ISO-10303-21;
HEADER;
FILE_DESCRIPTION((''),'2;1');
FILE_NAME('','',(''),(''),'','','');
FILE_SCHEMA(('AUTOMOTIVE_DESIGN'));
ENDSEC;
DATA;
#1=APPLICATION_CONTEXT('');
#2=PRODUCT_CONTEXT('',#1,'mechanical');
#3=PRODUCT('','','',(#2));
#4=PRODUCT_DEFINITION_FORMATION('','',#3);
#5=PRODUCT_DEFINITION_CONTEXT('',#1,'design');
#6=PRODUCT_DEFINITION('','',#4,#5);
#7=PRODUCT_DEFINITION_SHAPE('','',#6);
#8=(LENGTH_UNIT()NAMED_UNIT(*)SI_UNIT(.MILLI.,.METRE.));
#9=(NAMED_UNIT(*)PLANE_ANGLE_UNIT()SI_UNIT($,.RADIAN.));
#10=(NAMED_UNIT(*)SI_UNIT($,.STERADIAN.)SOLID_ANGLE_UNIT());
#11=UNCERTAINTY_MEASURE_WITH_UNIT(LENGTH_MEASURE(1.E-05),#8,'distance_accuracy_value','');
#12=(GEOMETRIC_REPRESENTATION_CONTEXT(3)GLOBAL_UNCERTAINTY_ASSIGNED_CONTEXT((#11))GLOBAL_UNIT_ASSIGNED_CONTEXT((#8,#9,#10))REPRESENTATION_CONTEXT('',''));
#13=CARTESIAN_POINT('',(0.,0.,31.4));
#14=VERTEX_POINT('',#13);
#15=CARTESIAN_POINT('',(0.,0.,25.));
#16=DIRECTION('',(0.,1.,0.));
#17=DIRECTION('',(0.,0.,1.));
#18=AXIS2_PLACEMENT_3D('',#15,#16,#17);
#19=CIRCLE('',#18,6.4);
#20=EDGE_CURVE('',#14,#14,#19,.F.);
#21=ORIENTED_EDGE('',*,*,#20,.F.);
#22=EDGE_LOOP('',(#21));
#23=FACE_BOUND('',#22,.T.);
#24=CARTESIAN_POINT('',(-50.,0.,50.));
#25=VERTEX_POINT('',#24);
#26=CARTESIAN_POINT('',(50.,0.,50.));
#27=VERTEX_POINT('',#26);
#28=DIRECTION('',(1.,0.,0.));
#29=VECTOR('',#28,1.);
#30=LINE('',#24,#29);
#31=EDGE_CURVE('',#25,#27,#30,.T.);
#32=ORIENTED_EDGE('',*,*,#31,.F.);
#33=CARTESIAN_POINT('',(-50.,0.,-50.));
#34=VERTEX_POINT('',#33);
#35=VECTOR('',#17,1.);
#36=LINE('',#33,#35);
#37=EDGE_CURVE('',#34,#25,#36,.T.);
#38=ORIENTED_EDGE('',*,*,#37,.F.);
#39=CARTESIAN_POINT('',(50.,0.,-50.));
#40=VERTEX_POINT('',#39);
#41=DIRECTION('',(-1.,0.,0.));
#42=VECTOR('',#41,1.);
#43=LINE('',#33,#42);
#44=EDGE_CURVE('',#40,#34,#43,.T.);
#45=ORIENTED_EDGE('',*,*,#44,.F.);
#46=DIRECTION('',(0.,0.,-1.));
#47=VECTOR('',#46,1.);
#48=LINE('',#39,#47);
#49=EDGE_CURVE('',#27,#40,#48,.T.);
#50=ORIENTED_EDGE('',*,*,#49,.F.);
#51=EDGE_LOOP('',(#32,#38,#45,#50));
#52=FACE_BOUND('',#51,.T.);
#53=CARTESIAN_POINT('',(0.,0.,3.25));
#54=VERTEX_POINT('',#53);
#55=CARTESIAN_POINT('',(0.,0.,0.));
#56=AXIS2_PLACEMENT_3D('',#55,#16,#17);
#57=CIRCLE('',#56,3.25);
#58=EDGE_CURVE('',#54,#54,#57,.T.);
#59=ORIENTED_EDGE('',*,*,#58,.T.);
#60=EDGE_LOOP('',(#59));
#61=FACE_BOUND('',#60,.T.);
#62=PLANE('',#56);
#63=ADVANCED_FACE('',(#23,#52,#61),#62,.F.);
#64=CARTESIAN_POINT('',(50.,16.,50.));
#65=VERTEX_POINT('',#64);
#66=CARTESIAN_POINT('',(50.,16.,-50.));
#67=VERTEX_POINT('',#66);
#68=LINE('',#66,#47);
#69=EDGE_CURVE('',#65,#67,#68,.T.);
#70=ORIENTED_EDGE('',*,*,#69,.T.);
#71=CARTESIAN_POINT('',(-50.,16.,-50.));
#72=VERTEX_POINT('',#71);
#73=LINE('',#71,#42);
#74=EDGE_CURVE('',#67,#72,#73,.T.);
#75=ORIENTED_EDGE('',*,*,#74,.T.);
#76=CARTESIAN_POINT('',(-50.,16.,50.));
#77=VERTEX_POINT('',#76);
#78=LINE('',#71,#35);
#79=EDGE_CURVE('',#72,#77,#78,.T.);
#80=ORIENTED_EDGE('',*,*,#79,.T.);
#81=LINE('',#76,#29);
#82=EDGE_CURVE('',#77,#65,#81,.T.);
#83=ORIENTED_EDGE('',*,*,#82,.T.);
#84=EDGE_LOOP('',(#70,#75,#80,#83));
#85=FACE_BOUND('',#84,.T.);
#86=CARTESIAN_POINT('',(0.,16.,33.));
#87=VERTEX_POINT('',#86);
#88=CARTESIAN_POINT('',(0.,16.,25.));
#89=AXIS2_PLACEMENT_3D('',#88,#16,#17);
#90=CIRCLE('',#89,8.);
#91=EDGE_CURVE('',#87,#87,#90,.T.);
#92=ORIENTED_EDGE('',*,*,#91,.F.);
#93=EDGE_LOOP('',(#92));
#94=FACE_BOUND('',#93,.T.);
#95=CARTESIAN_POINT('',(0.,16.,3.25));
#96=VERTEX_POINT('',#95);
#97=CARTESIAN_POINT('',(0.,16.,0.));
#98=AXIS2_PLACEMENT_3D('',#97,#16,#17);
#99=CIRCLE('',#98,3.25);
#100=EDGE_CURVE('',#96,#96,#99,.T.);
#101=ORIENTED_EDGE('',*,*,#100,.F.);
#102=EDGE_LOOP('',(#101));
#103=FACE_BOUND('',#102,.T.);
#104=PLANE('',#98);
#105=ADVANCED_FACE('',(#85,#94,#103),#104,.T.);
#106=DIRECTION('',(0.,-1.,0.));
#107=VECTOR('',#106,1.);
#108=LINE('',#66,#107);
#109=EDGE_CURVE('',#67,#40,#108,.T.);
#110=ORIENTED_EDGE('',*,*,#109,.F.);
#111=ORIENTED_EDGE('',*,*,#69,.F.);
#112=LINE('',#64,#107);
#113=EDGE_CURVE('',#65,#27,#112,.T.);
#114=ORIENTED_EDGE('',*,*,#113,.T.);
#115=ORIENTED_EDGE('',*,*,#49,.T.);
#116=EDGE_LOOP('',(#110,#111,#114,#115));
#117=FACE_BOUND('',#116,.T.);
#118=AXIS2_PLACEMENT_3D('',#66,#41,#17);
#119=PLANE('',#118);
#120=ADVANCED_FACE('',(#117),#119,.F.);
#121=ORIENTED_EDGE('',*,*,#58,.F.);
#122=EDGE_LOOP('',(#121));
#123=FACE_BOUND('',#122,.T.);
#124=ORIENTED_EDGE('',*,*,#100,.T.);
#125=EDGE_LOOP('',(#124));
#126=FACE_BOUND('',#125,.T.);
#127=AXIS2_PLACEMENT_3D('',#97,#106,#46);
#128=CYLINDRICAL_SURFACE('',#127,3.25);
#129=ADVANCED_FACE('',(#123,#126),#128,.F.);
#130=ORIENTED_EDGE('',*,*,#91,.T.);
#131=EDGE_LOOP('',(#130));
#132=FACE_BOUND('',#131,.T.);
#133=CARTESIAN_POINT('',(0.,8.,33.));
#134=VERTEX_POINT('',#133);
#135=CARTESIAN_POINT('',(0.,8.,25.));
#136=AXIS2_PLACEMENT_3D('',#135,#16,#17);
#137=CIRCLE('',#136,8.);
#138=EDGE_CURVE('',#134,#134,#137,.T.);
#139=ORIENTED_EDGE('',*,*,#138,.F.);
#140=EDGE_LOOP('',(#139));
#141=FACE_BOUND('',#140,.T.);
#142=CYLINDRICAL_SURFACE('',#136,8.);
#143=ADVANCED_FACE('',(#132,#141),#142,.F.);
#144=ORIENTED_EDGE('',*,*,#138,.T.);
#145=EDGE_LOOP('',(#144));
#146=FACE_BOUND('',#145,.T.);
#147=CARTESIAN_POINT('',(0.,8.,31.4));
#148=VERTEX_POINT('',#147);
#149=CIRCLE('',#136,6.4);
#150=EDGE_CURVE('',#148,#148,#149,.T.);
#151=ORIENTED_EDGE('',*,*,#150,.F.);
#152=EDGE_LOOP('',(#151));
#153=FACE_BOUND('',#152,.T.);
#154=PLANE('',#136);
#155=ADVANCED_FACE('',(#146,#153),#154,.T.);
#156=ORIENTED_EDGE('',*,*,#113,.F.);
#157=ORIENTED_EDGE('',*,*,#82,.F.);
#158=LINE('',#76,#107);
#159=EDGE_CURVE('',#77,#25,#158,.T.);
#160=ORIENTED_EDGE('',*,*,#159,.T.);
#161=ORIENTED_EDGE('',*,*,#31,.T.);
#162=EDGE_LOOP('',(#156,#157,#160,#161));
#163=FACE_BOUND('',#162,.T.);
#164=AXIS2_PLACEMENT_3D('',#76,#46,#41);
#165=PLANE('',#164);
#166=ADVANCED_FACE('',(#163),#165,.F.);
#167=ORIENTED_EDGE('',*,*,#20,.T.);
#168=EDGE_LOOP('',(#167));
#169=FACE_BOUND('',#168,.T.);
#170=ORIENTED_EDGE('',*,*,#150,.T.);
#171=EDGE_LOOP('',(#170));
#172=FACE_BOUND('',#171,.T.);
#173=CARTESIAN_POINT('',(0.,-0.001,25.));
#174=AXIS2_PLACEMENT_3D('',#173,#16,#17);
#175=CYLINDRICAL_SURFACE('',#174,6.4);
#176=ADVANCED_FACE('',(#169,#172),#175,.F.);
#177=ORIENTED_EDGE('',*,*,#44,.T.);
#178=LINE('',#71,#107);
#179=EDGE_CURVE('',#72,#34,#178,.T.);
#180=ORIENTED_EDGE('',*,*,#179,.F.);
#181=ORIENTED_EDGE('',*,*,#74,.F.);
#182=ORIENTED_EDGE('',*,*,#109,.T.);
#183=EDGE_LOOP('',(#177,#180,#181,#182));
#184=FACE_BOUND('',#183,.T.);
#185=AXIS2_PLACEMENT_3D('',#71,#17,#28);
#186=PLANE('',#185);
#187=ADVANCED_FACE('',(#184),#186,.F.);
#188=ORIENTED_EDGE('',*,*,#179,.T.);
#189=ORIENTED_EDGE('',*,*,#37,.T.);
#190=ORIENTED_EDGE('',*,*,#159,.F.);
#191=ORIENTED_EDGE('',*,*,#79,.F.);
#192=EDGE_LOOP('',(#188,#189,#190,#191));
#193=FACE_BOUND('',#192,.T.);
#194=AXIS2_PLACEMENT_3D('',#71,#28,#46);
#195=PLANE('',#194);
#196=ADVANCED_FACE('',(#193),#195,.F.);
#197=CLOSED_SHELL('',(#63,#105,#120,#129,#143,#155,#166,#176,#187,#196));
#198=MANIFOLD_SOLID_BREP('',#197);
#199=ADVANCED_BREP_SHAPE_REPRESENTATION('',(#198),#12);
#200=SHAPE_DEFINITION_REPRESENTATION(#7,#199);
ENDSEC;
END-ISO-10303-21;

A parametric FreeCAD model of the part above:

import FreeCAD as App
import Part
import Sketcher


def add_polygon(sketch, points):
    """Adds a closed chain of lines whose ends are joined by coincident constraints."""
    first, n = sketch.GeometryCount, len(points)
    for a, b in zip(points, points[1:] + points[:1]):
        sketch.addGeometry(Part.LineSegment(App.Vector(*a, 0), App.Vector(*b, 0)), False)
    for i in range(n):
        sketch.addConstraint(Sketcher.Constraint("Coincident", first + i, 2, first + (i + 1) % n, 1))

doc = App.newDocument("Part")
body = doc.addObject("PartDesign::Body", "Body")

# Sketch on XZ plane
sketch1 = body.newObject("Sketcher::SketchObject", "Sketch")
sketch1.AttachmentSupport = (doc.getObject("XZ_Plane"), [""])
sketch1.MapMode = "FlatFace"
add_polygon(sketch1, [(-50, -50), (-50, 50), (50, 50), (50, -50)])  # lines 0-3
sketch1.addGeometry(Part.Circle(App.Vector(0, 0, 0), App.Vector(0, 0, 1), 3.2), False)  # 4
sketch1.addConstraint([
    Sketcher.Constraint("Vertical", 0),
    Sketcher.Constraint("Horizontal", 1),
    Sketcher.Constraint("Vertical", 2),
    Sketcher.Constraint("Horizontal", 3),
    Sketcher.Constraint("Coincident", 4, 3, -1, 1),
    Sketcher.Constraint("Symmetric", 0, 2, 2, 2, -1, 1),
    Sketcher.Constraint("Equal", 3, 0),
    Sketcher.Constraint("Diameter", 4, 6.5),
    Sketcher.Constraint("DistanceX", 1, 1, 1, 2, 100.0),
])
pad1 = body.newObject("PartDesign::Pad", "Pad")
pad1.Profile = sketch1
pad1.Length = 16
pad1.Reversed = True

# Sketch on XZ plane
sketch2 = body.newObject("Sketcher::SketchObject", "Sketch001")
sketch2.AttachmentSupport = (doc.getObject("XZ_Plane"), [""])
sketch2.MapMode = "FlatFace"
sketch2.AttachmentOffset = App.Placement(App.Vector(0, 0, -16), App.Rotation())
sketch2.addGeometry(Part.Circle(App.Vector(0, 25, 0), App.Vector(0, 0, 1), 8), False)
sketch2.addConstraint([
    Sketcher.Constraint("PointOnObject", 0, 3, -2),
    Sketcher.Constraint("Diameter", 0, 16.0),
    Sketcher.Constraint("DistanceY", -1, 1, 0, 3, 25.0),
])
pocket1 = body.newObject("PartDesign::Pocket", "Pocket")
pocket1.Profile = sketch2
pocket1.Length = 8
pocket1.Reversed = True

# Sketch on XZ plane
sketch3 = body.newObject("Sketcher::SketchObject", "Sketch002")
sketch3.AttachmentSupport = (doc.getObject("XZ_Plane"), [""])
sketch3.MapMode = "FlatFace"
sketch3.AttachmentOffset = App.Placement(App.Vector(0, 0, -8), App.Rotation())
sketch3.addGeometry(Part.Circle(App.Vector(0, 25, 0), App.Vector(0, 0, 1), 6), False)
sketch3.addConstraint([
    Sketcher.Constraint("PointOnObject", 0, 3, -2),
    Sketcher.Constraint("Diameter", 0, 12.8),
    Sketcher.Constraint("DistanceY", -1, 1, 0, 3, 25.0),
])
pocket2 = body.newObject("PartDesign::Pocket", "Pocket001")
pocket2.Profile = sketch3
pocket2.Type = "UpToFirst"
pocket2.Reversed = True

doc.recompute()
